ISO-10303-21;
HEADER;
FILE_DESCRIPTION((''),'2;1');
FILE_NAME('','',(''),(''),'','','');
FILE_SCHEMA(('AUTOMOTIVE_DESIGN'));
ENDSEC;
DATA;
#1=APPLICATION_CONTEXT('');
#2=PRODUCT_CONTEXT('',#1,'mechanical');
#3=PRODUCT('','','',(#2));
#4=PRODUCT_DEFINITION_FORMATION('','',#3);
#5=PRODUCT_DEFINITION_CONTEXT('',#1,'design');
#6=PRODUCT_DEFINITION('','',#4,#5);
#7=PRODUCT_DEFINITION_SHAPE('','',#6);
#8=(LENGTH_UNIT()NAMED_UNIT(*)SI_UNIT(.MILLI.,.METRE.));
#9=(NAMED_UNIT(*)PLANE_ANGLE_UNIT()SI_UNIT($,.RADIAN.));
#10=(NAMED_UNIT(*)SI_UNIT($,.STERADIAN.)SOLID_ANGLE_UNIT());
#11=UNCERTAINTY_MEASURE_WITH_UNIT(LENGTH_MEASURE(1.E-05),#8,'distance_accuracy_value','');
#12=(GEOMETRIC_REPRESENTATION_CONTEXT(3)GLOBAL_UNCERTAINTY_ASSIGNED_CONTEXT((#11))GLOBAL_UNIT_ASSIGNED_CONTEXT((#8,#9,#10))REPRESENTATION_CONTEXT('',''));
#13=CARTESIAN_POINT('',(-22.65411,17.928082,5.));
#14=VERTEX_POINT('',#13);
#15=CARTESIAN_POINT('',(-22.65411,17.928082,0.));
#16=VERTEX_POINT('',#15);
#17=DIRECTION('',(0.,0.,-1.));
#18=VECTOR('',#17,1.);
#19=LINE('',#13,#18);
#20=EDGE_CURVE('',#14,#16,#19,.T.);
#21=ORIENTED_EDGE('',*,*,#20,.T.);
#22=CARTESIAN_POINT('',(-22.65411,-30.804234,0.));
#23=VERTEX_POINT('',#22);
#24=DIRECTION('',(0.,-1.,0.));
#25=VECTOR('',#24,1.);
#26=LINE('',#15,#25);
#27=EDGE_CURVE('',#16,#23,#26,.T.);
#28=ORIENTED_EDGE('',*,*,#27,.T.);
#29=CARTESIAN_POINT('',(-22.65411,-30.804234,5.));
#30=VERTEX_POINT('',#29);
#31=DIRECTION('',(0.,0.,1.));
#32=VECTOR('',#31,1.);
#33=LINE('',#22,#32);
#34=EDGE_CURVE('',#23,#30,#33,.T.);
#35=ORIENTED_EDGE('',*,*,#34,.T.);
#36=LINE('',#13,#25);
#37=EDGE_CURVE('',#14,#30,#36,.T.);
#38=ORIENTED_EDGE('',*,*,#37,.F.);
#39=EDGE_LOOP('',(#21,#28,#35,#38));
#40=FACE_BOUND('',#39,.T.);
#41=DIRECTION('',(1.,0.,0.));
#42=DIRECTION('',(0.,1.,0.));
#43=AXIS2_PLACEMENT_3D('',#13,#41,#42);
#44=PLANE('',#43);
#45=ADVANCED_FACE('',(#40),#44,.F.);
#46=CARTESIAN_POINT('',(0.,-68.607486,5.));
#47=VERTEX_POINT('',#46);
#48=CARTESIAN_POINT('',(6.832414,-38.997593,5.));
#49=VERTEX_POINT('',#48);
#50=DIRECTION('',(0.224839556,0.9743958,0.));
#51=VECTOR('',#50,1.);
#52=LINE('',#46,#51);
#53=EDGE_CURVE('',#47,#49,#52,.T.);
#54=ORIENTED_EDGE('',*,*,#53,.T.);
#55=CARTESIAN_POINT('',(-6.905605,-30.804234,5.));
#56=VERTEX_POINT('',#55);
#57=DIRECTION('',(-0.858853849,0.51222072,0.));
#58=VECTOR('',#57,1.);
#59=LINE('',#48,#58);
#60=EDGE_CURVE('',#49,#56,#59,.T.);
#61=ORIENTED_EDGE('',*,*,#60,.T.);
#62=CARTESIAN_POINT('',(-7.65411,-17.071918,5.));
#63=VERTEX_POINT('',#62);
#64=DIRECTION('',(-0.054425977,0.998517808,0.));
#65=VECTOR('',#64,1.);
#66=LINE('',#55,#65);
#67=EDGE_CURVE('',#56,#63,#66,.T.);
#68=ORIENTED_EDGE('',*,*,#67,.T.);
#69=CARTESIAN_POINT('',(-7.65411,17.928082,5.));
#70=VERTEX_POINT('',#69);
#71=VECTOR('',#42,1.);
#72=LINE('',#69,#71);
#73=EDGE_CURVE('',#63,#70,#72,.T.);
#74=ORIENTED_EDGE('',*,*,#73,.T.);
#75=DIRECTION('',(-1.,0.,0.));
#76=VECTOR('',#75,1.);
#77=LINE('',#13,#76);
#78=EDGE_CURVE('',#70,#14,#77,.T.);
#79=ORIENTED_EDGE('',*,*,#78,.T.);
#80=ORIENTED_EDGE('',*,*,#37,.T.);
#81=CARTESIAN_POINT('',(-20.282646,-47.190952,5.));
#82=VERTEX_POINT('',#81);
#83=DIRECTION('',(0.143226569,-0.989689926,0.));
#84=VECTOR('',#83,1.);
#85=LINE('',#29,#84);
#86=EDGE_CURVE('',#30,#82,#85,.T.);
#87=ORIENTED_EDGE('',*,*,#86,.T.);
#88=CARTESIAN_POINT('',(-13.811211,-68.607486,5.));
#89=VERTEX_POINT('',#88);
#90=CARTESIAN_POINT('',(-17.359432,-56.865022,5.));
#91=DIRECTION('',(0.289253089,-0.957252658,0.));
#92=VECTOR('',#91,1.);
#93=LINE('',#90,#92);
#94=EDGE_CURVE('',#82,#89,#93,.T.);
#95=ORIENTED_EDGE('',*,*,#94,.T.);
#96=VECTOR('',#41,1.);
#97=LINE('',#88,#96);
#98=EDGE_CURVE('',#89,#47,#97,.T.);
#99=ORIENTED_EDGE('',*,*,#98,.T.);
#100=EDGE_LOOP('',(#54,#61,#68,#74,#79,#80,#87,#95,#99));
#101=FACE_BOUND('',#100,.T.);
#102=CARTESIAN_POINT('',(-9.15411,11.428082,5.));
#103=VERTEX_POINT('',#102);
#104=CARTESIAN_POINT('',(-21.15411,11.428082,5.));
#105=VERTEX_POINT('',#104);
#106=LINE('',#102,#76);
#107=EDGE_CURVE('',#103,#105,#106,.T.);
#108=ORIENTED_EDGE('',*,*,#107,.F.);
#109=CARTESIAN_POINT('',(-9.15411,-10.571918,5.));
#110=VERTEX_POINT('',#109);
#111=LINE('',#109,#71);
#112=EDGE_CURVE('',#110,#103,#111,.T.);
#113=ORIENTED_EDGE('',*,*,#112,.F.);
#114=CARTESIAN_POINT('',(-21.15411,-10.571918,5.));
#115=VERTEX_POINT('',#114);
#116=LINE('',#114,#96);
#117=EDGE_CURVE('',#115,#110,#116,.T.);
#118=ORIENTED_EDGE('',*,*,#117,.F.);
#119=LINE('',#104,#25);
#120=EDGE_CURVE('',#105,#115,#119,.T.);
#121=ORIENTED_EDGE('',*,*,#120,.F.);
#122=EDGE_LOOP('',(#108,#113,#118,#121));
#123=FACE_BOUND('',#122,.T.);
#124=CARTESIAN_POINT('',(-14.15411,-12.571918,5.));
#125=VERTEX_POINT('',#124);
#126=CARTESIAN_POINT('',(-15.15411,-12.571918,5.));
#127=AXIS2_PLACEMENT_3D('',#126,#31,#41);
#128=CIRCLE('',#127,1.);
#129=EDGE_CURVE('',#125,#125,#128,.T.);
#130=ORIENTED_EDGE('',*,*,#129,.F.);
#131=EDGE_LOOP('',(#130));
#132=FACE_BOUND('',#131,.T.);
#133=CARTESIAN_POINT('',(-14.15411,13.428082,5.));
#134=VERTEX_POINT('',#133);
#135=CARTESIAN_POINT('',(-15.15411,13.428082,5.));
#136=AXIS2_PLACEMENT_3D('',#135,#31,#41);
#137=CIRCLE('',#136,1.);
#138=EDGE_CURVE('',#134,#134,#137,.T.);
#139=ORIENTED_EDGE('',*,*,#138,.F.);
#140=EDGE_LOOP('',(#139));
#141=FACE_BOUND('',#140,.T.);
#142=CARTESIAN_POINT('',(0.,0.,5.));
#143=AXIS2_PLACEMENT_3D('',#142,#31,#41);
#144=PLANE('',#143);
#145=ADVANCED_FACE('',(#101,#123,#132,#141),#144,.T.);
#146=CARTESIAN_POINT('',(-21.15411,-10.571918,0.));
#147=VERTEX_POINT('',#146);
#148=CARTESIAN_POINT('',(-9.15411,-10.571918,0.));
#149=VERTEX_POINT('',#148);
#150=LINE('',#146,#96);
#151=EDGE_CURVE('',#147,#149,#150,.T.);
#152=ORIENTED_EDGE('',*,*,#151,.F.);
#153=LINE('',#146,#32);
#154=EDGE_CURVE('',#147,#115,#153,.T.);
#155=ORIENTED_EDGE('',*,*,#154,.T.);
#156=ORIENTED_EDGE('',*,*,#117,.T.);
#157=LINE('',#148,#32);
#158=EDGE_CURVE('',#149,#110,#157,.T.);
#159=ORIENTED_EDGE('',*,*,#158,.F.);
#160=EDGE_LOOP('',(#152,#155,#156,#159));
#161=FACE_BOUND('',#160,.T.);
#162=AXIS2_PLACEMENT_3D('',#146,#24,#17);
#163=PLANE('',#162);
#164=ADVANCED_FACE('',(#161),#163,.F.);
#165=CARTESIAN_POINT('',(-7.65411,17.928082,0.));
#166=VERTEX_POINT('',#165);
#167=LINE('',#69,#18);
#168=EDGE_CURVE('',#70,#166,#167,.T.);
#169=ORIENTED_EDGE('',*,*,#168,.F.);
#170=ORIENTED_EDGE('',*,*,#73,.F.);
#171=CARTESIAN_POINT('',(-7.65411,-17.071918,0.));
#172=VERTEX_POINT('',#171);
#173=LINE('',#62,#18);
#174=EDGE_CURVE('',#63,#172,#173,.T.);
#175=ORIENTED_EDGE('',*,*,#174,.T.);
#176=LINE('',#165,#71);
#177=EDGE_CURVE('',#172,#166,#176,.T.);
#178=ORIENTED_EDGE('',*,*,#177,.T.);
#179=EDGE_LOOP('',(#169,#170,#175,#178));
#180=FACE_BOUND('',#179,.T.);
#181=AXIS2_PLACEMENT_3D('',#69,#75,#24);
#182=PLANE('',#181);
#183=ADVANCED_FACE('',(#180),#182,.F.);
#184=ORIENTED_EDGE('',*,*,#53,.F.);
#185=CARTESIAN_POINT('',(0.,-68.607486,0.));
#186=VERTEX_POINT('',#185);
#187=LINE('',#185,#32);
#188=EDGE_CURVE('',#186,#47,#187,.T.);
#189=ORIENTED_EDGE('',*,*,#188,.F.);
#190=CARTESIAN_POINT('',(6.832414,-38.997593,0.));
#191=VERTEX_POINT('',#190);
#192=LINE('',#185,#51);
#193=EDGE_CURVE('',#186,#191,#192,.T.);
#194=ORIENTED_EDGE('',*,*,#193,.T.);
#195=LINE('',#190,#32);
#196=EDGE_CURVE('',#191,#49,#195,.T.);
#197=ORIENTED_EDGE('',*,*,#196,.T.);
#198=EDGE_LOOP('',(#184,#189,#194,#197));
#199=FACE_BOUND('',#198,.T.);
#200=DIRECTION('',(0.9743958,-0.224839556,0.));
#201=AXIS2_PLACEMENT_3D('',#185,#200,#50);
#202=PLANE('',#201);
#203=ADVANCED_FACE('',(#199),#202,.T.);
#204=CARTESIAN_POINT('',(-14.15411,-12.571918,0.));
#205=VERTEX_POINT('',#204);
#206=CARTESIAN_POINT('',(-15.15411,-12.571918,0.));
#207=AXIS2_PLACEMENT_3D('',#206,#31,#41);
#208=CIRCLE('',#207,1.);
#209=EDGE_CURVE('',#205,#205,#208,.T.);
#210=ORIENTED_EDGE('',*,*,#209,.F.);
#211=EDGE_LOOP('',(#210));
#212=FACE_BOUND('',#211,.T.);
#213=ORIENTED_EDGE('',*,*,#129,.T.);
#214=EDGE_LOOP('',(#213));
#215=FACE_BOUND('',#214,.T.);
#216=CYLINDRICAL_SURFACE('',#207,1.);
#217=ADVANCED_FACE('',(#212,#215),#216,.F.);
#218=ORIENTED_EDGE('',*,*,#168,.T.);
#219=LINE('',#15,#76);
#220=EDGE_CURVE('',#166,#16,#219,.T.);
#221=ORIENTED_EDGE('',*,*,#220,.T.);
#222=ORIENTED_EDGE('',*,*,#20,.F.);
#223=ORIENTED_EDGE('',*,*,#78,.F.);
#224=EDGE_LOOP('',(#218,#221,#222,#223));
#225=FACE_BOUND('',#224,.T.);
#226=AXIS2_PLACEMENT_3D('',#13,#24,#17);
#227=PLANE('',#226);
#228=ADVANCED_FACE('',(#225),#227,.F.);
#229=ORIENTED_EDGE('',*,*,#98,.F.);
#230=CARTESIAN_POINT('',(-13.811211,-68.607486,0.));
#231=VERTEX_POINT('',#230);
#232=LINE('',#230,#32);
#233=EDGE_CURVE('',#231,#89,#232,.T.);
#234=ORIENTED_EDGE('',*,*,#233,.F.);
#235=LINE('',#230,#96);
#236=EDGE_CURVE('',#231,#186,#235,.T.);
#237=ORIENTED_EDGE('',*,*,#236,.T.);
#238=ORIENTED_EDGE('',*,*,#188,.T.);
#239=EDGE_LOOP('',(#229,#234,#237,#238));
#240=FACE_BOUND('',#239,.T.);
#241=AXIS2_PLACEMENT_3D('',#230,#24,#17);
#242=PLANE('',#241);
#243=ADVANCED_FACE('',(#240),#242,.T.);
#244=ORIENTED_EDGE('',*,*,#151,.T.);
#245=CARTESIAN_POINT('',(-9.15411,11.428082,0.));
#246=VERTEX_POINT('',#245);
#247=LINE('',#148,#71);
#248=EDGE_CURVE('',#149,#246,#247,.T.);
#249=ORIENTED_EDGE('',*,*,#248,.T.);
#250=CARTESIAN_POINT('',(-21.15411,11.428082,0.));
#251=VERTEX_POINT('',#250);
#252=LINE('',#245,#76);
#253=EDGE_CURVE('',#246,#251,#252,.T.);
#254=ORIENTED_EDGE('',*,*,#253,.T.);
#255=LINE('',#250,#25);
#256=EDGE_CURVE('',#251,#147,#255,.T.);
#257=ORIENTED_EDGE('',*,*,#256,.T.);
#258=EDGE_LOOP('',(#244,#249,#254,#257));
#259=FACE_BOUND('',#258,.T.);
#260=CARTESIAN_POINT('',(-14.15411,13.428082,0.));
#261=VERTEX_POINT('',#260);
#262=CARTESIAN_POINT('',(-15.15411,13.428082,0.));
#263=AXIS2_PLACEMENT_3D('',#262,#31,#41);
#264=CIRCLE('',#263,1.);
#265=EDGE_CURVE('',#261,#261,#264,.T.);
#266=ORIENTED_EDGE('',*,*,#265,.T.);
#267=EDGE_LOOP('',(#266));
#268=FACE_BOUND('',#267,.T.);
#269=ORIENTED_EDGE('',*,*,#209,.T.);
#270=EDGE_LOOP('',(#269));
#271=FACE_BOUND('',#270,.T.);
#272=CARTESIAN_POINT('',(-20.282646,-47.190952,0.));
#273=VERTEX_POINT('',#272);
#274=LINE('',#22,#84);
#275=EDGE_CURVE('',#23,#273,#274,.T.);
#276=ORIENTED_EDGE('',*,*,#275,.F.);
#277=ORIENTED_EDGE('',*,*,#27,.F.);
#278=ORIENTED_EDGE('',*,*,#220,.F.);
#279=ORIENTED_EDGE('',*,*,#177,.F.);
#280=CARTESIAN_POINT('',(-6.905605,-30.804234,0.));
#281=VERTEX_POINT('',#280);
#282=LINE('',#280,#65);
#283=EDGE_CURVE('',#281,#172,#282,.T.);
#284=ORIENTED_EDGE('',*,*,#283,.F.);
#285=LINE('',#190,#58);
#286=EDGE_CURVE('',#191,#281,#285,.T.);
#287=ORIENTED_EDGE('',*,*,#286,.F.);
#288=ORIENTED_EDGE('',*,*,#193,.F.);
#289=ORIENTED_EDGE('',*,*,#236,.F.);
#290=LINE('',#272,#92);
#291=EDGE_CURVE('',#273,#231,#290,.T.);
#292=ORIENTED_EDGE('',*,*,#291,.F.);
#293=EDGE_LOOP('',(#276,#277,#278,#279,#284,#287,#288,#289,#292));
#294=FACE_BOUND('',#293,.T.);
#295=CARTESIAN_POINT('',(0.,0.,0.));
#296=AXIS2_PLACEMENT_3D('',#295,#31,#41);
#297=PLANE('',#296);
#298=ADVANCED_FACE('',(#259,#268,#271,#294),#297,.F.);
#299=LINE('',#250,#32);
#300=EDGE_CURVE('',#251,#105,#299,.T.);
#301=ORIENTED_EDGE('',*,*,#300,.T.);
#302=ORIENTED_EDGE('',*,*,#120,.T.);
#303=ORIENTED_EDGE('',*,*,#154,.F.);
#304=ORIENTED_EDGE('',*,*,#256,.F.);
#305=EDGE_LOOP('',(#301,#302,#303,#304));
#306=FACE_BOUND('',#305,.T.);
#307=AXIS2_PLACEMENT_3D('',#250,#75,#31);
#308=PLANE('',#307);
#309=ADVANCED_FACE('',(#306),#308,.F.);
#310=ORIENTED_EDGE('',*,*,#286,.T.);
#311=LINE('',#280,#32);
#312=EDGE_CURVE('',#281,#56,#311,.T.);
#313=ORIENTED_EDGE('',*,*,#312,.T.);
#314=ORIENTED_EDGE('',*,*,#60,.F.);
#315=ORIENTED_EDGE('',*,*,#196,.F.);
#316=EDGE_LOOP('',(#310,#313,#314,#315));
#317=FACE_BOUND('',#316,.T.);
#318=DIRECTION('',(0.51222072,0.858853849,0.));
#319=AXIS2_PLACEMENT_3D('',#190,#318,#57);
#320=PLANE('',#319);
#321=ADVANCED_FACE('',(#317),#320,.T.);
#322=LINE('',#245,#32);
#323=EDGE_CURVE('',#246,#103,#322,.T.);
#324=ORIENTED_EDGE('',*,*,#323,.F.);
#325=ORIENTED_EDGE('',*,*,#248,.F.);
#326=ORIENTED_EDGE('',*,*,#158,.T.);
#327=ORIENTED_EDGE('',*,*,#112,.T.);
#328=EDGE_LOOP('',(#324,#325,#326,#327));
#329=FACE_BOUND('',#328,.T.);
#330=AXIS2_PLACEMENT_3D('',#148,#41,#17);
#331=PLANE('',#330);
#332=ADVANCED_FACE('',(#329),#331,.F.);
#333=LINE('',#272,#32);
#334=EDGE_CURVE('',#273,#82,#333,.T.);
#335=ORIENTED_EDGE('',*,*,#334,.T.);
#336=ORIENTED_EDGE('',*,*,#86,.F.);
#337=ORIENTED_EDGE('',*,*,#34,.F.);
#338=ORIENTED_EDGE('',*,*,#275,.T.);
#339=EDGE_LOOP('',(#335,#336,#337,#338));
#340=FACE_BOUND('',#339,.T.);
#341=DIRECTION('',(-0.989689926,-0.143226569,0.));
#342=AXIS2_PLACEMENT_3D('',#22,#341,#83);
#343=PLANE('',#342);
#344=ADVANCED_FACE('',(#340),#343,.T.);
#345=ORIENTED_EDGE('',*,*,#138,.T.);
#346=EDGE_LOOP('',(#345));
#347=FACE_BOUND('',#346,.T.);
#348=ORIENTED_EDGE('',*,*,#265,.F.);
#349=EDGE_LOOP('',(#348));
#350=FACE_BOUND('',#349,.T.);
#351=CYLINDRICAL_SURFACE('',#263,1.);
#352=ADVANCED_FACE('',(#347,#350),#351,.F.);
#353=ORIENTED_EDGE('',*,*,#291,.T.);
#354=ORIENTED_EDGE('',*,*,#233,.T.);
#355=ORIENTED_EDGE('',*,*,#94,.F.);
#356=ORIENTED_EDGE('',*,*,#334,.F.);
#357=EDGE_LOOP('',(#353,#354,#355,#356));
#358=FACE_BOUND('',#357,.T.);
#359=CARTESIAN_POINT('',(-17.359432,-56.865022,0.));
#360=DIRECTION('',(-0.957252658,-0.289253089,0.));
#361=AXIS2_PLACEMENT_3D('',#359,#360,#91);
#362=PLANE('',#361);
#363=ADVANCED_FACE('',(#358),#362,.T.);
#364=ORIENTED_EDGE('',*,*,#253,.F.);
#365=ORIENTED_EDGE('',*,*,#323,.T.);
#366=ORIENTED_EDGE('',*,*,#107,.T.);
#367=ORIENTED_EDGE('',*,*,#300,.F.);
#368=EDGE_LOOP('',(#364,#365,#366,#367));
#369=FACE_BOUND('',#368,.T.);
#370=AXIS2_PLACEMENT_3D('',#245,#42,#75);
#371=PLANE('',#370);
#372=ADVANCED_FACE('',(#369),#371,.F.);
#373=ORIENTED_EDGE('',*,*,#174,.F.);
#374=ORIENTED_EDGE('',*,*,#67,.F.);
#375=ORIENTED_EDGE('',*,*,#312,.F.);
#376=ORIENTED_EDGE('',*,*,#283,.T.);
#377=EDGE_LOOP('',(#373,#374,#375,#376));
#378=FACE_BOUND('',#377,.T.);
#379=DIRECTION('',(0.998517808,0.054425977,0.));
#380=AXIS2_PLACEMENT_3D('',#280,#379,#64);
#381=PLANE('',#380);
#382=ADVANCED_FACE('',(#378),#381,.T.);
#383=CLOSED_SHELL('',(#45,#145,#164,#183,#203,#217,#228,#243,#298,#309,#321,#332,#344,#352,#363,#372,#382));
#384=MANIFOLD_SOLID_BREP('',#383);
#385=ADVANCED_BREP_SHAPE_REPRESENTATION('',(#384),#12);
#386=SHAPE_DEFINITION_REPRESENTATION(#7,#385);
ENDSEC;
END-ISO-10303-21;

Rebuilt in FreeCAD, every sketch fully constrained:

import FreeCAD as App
import Part
import Sketcher
from FreeCAD import Vector
Q = App.Units.Quantity

doc = App.newDocument("Part")
params = doc.addObject("Spreadsheet::Sheet", "Params")
for row, (alias, value) in enumerate([
    ("sketch1_width", "15 mm"),
    ("sketch1_height", "35 mm"),
    ("pad1_length", "5 mm"),
    ("sketch2_diameter", "2 mm"),
    ("sketch2_width", "12 mm"),
    ("sketch2_height", "22 mm"),
    ("pocket1_length", "5 mm"),
    ("sketch3_width", "15 mm"),
    ("pad2_length", "5 mm"),
], start=1):
    params.set(f"A{row}", alias)
    params.set(f"B{row}", "=" + value)
    params.setAlias(f"B{row}", alias)

body = doc.addObject("PartDesign::Body", "Body")

sketch1 = doc.addObject("Sketcher::SketchObject", "Sketch")
body.addObject(sketch1)
sketch1.AttachmentSupport = (doc.XY_Plane, [""])
sketch1.MapMode = "FlatFace"
sketch1.addGeometry([
    Part.LineSegment(Vector(-23, 18, 0), Vector(-23, -17, 0)),
    Part.LineSegment(Vector(-23, -17, 0), Vector(-8, -17, 0)),
    Part.LineSegment(Vector(-8, -17, 0), Vector(-8, 18, 0)),
    Part.LineSegment(Vector(-8, 18, 0), Vector(-23, 18, 0)),
], False)
sketch1.addConstraint([
    Sketcher.Constraint("Coincident", 0, 2, 1, 1),
    Sketcher.Constraint("Coincident", 1, 2, 2, 1),
    Sketcher.Constraint("Coincident", 2, 2, 3, 1),
    Sketcher.Constraint("Coincident", 3, 2, 0, 1),
    Sketcher.Constraint("Vertical", 0),
    Sketcher.Constraint("Horizontal", 1),
    Sketcher.Constraint("Vertical", 2),
    Sketcher.Constraint("Horizontal", 3),
    Sketcher.Constraint("DistanceX", 1, 1, 1, 2, Q("15 mm")),
    Sketcher.Constraint("DistanceY", 0, 2, 0, 1, Q("35 mm")),
    Sketcher.Constraint("DistanceX", 0, 2, -1, 1, Q("22.65411 mm")),
    Sketcher.Constraint("DistanceY", 0, 2, -1, 1, Q("17.071918 mm")),
])
sketch1.setExpression("Constraints[8]", "Params.sketch1_width")
sketch1.setExpression("Constraints[9]", "Params.sketch1_height")
pad1 = doc.addObject("PartDesign::Pad", "Pad")
body.addObject(pad1)
pad1.Profile = sketch1
pad1.setExpression("Length", "Params.pad1_length")

sketch2 = doc.addObject("Sketcher::SketchObject", "Sketch001")
body.addObject(sketch2)
sketch2.AttachmentSupport = (doc.XY_Plane, [""])
sketch2.MapMode = "FlatFace"
sketch2.AttachmentOffset = App.Placement(Vector(0, 0, 5), App.Rotation())
sketch2.addGeometry([
    Part.Circle(Vector(-15.2, -12.6, 0), Vector(0, 0, 1), 1),
    Part.Circle(Vector(-15.2, 13.4, 0), Vector(0, 0, 1), 1),
    Part.LineSegment(Vector(-21.2, 11.4, 0), Vector(-21.2, -10.6, 0)),
    Part.LineSegment(Vector(-21.2, -10.6, 0), Vector(-9.2, -10.6, 0)),
    Part.LineSegment(Vector(-9.2, -10.6, 0), Vector(-9.2, 11.4, 0)),
    Part.LineSegment(Vector(-9.2, 11.4, 0), Vector(-21.2, 11.4, 0)),
], False)
sketch2.addConstraint([
    Sketcher.Constraint("Coincident", 2, 2, 3, 1),
    Sketcher.Constraint("Coincident", 3, 2, 4, 1),
    Sketcher.Constraint("Coincident", 4, 2, 5, 1),
    Sketcher.Constraint("Coincident", 5, 2, 2, 1),
    Sketcher.Constraint("Vertical", 2),
    Sketcher.Constraint("Horizontal", 3),
    Sketcher.Constraint("Vertical", 4),
    Sketcher.Constraint("Horizontal", 5),
    Sketcher.Constraint("Equal", 0, 1),
    Sketcher.Constraint("Vertical", 0, 3, 1, 3),
    Sketcher.Constraint("Diameter", 0, Q("2 mm")),
    Sketcher.Constraint("DistanceX", 3, 1, 3, 2, Q("12 mm")),
    Sketcher.Constraint("DistanceY", 2, 2, 2, 1, Q("22 mm")),
    Sketcher.Constraint("DistanceY", 0, 3, 1, 3, Q("26 mm")),
    Sketcher.Constraint("DistanceX", 2, 2, 0, 3, Q("6 mm")),
    Sketcher.Constraint("DistanceY", 0, 3, 2, 2, Q("2 mm")),
    Sketcher.Constraint("DistanceX", 0, 3, -1, 1, Q("15.15411 mm")),
    Sketcher.Constraint("DistanceY", 0, 3, -1, 1, Q("12.571918 mm")),
])
sketch2.setExpression("Constraints[10]", "Params.sketch2_diameter")
sketch2.setExpression("Constraints[11]", "Params.sketch2_width")
sketch2.setExpression("Constraints[12]", "Params.sketch2_height")
pocket1 = doc.addObject("PartDesign::Pocket", "Pocket")
body.addObject(pocket1)
pocket1.Profile = sketch2
pocket1.setExpression("Length", "Params.pocket1_length")

sketch3 = doc.addObject("Sketcher::SketchObject", "Sketch002")
body.addObject(sketch3)
sketch3.AttachmentSupport = (doc.XY_Plane, [""])
sketch3.MapMode = "FlatFace"
sketch3.AttachmentOffset = App.Placement(Vector(0, 0, 5), App.Rotation())
sketch3.addGeometry([
    Part.LineSegment(Vector(-23, -17, 0), Vector(-23, -31, 0)),
    Part.LineSegment(Vector(-23, -31, 0), Vector(-20, -47, 0)),
    Part.LineSegment(Vector(-20, -47, 0), Vector(-17, -57, 0)),
    Part.LineSegment(Vector(-17, -57, 0), Vector(-14, -69, 0)),
    Part.LineSegment(Vector(-14, -69, 0), Vector(0, -69, 0)),
    Part.LineSegment(Vector(0, -69, 0), Vector(7, -39, 0)),
    Part.LineSegment(Vector(7, -39, 0), Vector(-7, -31, 0)),
    Part.LineSegment(Vector(-7, -31, 0), Vector(-8, -17, 0)),
    Part.LineSegment(Vector(-8, -17, 0), Vector(-23, -17, 0)),
], False)
sketch3.addConstraint([
    Sketcher.Constraint("Coincident", 0, 2, 1, 1),
    Sketcher.Constraint("Coincident", 1, 2, 2, 1),
    Sketcher.Constraint("Coincident", 2, 2, 3, 1),
    Sketcher.Constraint("Coincident", 3, 2, 4, 1),
    Sketcher.Constraint("Coincident", 4, 2, 5, 1),
    Sketcher.Constraint("Coincident", 5, 2, 6, 1),
    Sketcher.Constraint("Coincident", 6, 2, 7, 1),
    Sketcher.Constraint("Coincident", 7, 2, 8, 1),
    Sketcher.Constraint("Coincident", 8, 2, 0, 1),
    Sketcher.Constraint("Vertical", 0),
    Sketcher.Constraint("Horizontal", 4),
    Sketcher.Constraint("Horizontal", 8),
    Sketcher.Constraint("PointOnObject", 4, 2, -2),
    Sketcher.Constraint("Parallel", 2, 3),
    Sketcher.Constraint("Horizontal", 0, 2, 6, 2),
    Sketcher.Constraint("DistanceX", 8, 2, 8, 1, Q("15 mm")),
    Sketcher.Constraint("Distance", 7, Q("13.7527 mm")),
    Sketcher.Constraint("DistanceX", 4, 1, 4, 2, Q("13.811211 mm")),
    Sketcher.Constraint("DistanceX", 0, 2, 3, 2, Q("8.842899 mm")),
    Sketcher.Constraint("Distance", 2, Q("10.106078 mm")),
    Sketcher.Constraint("Distance", 3, Q("12.266838 mm")),
    Sketcher.Constraint("Distance", 6, Q("15.995759 mm")),
    Sketcher.Constraint("DistanceY", 0, 2, 0, 1, Q("13.732316 mm")),
    Sketcher.Constraint("DistanceX", 2, 2, -1, 1, Q("17.359432 mm")),
    Sketcher.Constraint("DistanceY", 1, 2, 0, 2, Q("16.386718 mm")),
    Sketcher.Constraint("DistanceX", 1, 2, 5, 2, Q("27.11506 mm")),
    Sketcher.Constraint("DistanceY", 0, 2, -1, 1, Q("30.804234 mm")),
])
sketch3.setExpression("Constraints[15]", "Params.sketch3_width")
pad2 = doc.addObject("PartDesign::Pad", "Pad001")
body.addObject(pad2)
pad2.Profile = sketch3
pad2.setExpression("Length", "Params.pad2_length")
pad2.Reversed = True

doc.recompute()
